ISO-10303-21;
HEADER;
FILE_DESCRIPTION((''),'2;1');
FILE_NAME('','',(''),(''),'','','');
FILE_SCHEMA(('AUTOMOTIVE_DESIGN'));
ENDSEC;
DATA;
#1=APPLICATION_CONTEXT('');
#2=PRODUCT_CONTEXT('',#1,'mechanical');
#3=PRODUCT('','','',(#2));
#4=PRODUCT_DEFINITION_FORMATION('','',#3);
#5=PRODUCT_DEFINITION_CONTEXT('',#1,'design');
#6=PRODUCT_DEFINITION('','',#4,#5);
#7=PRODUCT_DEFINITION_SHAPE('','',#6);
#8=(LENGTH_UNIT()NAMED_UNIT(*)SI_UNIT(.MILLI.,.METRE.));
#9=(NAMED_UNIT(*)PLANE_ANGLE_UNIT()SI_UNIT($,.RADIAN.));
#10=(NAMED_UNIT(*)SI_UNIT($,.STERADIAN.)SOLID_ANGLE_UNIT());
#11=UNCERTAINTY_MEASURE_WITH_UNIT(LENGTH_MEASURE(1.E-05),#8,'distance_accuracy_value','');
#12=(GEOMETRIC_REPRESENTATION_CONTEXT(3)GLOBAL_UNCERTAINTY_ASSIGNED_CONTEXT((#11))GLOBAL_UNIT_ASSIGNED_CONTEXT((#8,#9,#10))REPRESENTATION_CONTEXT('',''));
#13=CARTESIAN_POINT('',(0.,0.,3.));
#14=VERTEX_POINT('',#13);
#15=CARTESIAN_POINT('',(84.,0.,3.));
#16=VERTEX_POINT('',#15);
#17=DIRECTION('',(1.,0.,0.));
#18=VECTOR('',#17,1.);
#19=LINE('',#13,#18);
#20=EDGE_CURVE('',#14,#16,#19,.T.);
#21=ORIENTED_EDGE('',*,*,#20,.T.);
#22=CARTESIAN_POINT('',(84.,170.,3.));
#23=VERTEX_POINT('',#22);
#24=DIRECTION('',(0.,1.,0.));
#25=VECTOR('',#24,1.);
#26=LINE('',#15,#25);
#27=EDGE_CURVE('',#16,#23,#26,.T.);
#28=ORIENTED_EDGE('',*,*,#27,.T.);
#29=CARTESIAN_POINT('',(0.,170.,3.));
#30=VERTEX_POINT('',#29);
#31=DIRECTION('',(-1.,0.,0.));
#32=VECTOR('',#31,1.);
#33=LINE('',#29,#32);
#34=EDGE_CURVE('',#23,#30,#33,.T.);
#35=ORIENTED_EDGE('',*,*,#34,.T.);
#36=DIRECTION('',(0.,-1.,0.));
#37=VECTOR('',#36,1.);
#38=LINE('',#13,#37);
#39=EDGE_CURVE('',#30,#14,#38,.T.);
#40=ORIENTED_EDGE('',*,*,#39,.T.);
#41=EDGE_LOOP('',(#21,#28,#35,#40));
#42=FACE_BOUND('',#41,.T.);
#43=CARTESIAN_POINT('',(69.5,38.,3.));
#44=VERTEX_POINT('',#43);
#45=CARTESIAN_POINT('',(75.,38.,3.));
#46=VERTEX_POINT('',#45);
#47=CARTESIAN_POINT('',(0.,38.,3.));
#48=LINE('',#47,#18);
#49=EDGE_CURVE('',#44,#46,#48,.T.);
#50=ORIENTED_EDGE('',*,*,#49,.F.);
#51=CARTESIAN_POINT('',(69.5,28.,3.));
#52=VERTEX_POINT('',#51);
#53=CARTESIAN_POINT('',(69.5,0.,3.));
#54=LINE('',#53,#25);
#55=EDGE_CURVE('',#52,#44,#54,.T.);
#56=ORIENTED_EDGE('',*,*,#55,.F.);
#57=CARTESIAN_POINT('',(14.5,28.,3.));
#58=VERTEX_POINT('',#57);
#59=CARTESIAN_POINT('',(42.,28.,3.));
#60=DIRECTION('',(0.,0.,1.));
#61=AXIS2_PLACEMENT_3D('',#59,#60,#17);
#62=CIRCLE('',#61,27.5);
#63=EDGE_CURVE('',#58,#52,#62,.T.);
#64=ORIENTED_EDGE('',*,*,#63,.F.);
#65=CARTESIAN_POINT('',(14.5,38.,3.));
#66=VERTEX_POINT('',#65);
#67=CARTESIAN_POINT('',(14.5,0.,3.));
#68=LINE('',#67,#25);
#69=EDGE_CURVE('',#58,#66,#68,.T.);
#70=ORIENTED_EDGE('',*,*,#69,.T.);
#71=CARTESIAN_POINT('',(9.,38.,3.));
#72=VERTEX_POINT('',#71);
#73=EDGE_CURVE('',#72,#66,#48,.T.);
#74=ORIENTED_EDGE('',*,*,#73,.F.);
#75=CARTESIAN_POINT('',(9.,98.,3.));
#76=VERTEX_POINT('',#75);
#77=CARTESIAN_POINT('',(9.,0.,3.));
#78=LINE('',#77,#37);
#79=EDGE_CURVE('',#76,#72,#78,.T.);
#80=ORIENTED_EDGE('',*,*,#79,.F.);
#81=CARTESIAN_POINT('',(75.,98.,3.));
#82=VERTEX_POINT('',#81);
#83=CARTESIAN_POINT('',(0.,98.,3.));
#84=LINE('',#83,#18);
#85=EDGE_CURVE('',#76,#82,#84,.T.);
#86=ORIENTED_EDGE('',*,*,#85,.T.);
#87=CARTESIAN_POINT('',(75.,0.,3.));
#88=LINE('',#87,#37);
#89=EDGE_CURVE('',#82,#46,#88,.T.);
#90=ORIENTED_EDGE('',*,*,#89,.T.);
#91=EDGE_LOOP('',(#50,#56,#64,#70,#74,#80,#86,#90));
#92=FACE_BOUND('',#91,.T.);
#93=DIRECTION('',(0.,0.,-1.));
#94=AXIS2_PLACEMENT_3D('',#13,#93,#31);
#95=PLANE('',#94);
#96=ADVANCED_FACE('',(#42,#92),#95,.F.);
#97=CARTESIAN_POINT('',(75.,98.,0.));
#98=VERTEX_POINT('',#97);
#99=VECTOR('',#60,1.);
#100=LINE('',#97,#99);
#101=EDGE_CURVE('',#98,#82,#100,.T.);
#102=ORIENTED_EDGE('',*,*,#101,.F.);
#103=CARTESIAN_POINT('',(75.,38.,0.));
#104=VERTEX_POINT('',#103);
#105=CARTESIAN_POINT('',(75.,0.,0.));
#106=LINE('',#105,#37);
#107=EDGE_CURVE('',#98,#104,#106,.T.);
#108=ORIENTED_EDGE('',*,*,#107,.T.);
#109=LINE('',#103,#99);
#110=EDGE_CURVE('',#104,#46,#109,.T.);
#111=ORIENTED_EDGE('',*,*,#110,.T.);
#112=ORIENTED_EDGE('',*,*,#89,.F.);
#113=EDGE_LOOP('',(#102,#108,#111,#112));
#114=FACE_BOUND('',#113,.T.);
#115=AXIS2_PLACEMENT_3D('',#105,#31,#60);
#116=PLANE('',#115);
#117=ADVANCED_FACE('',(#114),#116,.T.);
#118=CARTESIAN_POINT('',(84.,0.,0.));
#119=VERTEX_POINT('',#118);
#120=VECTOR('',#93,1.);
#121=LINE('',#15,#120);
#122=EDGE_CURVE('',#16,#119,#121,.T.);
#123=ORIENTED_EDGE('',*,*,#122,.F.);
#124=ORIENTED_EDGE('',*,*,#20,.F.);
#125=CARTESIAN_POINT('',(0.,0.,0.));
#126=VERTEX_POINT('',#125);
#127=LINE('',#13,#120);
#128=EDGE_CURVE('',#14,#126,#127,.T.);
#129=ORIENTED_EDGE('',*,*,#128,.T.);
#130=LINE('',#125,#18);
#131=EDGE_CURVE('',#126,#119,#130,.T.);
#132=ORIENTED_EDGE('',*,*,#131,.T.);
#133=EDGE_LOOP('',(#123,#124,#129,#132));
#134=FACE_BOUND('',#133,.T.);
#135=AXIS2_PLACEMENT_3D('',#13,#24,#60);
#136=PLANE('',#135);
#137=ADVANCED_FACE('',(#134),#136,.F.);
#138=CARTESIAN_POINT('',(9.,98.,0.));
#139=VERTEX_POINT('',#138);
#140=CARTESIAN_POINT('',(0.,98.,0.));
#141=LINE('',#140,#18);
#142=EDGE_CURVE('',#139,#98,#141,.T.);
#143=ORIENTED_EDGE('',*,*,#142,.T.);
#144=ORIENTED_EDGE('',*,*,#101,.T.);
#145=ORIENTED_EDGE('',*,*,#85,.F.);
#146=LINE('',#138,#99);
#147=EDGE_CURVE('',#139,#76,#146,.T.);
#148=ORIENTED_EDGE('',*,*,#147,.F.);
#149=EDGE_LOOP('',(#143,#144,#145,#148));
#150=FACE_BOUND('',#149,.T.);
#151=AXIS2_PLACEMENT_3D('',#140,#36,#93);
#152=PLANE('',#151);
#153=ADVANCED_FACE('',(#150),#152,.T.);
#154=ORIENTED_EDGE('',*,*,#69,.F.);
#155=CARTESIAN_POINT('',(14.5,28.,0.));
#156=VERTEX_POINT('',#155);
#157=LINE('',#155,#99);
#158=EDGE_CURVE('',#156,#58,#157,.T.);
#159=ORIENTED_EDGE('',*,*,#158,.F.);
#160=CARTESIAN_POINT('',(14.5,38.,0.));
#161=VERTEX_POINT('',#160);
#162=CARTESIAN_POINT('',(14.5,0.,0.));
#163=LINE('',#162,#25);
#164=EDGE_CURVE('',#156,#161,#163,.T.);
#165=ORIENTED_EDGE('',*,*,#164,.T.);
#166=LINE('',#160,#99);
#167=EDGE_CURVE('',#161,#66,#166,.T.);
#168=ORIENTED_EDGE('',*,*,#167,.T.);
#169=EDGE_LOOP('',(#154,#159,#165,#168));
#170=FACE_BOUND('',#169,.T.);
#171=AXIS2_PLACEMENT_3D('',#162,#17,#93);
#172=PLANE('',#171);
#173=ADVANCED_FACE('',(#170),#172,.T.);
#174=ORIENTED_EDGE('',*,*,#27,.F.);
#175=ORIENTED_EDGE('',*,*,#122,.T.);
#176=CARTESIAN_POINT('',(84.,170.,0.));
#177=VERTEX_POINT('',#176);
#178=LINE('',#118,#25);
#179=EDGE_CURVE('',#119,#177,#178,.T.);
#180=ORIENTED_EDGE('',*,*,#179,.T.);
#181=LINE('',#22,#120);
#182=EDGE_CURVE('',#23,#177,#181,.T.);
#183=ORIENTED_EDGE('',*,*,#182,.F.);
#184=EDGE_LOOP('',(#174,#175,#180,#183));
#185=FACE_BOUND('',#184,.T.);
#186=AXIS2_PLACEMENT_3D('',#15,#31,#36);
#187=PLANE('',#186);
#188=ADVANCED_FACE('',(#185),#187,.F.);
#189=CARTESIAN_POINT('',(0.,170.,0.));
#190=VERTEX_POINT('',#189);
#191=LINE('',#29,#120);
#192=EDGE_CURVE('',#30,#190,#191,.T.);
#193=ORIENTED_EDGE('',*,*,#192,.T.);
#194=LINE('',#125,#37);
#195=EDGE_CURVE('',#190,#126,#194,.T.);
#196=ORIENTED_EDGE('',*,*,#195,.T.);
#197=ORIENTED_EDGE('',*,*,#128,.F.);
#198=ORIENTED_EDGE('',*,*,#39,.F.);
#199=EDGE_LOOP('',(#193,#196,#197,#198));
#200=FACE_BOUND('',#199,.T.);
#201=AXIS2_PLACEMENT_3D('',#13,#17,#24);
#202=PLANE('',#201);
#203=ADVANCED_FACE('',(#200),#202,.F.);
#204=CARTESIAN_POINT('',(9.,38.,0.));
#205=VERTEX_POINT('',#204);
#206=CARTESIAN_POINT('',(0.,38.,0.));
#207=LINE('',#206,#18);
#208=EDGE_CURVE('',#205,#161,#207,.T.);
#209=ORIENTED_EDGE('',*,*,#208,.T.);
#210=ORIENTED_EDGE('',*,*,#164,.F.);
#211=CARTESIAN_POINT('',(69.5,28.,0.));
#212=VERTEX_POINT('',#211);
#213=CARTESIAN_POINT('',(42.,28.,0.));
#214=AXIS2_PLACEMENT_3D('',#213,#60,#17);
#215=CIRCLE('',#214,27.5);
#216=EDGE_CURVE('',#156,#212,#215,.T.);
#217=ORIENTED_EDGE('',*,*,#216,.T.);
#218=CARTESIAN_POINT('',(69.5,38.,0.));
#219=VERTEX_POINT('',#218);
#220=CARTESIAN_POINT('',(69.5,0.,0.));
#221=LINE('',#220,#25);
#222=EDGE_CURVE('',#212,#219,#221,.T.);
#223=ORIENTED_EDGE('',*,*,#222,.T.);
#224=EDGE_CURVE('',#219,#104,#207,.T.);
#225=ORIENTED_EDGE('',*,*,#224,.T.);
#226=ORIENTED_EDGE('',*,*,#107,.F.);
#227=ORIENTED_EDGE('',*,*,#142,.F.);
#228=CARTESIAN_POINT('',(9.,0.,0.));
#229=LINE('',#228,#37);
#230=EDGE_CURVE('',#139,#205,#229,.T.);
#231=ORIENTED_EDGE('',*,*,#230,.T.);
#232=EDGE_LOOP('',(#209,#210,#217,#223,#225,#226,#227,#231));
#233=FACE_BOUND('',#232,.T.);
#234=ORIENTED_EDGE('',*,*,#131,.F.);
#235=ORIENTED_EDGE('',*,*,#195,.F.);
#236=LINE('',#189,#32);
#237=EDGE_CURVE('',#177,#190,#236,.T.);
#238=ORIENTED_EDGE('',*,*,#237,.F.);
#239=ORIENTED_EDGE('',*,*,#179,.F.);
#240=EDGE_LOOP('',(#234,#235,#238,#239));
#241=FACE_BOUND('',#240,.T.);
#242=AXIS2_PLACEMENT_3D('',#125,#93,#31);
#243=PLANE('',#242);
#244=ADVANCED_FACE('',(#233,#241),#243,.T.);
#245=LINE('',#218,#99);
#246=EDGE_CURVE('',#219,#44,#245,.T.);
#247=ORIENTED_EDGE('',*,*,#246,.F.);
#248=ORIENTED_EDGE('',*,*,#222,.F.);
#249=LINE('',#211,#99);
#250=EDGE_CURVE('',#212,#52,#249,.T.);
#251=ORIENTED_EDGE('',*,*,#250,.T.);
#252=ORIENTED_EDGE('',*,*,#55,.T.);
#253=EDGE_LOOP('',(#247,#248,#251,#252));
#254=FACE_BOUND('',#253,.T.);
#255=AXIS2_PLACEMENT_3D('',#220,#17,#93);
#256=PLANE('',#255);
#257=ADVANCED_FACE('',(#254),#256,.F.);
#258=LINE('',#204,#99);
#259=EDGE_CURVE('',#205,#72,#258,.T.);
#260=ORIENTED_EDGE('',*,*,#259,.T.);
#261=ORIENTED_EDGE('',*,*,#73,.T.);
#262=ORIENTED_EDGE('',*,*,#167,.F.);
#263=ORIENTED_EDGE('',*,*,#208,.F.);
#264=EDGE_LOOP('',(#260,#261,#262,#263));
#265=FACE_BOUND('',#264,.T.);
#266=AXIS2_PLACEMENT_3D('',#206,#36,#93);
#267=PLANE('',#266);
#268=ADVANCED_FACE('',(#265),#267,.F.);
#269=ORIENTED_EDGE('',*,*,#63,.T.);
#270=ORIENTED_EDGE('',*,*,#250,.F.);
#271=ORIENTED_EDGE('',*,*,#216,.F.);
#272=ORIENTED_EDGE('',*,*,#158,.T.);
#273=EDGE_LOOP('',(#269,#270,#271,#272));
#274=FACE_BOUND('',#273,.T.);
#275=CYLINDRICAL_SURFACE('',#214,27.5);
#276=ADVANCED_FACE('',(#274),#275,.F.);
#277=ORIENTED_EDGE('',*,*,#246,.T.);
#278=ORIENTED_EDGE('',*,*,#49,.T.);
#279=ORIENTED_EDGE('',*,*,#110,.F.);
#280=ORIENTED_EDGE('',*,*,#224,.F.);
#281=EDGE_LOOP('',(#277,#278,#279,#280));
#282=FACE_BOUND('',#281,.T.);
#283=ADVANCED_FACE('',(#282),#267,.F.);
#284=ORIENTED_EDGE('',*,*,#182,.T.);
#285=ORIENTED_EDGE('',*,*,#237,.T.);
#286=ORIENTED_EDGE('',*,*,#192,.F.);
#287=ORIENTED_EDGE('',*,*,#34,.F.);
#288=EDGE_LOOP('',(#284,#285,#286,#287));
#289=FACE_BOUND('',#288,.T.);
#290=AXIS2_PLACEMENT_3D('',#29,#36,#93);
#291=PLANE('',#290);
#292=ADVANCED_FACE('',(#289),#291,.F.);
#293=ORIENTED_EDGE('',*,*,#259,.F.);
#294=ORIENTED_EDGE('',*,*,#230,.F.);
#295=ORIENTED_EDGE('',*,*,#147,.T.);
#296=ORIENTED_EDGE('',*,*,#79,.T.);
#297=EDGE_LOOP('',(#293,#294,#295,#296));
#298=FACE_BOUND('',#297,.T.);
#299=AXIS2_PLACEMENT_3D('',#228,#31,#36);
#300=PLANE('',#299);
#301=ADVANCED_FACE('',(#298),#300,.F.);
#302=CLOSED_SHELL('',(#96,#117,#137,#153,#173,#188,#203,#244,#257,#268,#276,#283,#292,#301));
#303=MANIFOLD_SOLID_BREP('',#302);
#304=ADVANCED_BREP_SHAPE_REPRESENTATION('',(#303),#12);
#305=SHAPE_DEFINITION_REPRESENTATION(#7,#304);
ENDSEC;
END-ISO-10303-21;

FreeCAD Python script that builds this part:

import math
import FreeCAD as App
import Part
import Sketcher
from FreeCAD import Vector


def add_polygon(sketch, points):
    """Adds a closed chain of lines whose ends are joined by coincident constraints."""
    first, n = sketch.GeometryCount, len(points)
    for a, b in zip(points, points[1:] + points[:1]):
        sketch.addGeometry(Part.LineSegment(App.Vector(*a, 0), App.Vector(*b, 0)), False)
    for i in range(n):
        sketch.addConstraint(Sketcher.Constraint("Coincident", first + i, 2, first + (i + 1) % n, 1))

doc = App.newDocument("Part")
params = doc.addObject("Spreadsheet::Sheet", "Params")
for row, (alias, value) in enumerate([
    ("sketch1_width", "84 mm"),
    ("sketch1_height", "170 mm"),
    ("pad1_length", "3 mm"),
    ("sketch2_radius", "27.5 mm"),
    ("sketch2_width", "66 mm"),
    ("sketch2_height", "10 mm"),
    ("sketch2_height2", "60 mm"),
    ("pocket1_length", "3 mm"),
], start=1):
    params.set(f"A{row}", alias)
    params.set(f"B{row}", "=" + value)
    params.setAlias(f"B{row}", alias)

body = doc.addObject("PartDesign::Body", "Body")

sketch1 = body.newObject("Sketcher::SketchObject", "Sketch")
sketch1.AttachmentSupport = (doc.getObject("XY_Plane"), [""])
sketch1.MapMode = "FlatFace"
add_polygon(sketch1, [(0, 170), (0, 0), (84, 0), (84, 170)])
sketch1.addConstraint([
    Sketcher.Constraint("Vertical", 0),
    Sketcher.Constraint("Horizontal", 1),
    Sketcher.Constraint("Vertical", 2),
    Sketcher.Constraint("Horizontal", 3),
    Sketcher.Constraint("Coincident", 0, 2, -1, 1),
    Sketcher.Constraint("DistanceX", 1, 1, 1, 2, 84.0),
    Sketcher.Constraint("DistanceY", 0, 2, 0, 1, 170.0),
])
sketch1.setExpression("Constraints[9]", "Params.sketch1_width")
sketch1.setExpression("Constraints[10]", "Params.sketch1_height")
pad1 = body.newObject("PartDesign::Pad", "Pad")
pad1.Profile = sketch1
pad1.setExpression("Length", "Params.pad1_length")

sketch2 = body.newObject("Sketcher::SketchObject", "Sketch001")
sketch2.AttachmentSupport = (doc.getObject("XY_Plane"), [""])
sketch2.MapMode = "FlatFace"
sketch2.AttachmentOffset = App.Placement(Vector(0, 0, 3), App.Rotation())
sketch2.addGeometry([
    Part.ArcOfCircle(Part.Circle(Vector(42, 28, 0), Vector(0, 0, 1), 28), math.radians(180), math.radians(360)),
    Part.LineSegment(Vector(70, 28, 0), Vector(70, 38, 0)),
    Part.LineSegment(Vector(70, 38, 0), Vector(75, 38, 0)),
    Part.LineSegment(Vector(75, 38, 0), Vector(75, 98, 0)),
    Part.LineSegment(Vector(75, 98, 0), Vector(9, 98, 0)),
    Part.LineSegment(Vector(9, 98, 0), Vector(9, 38, 0)),
    Part.LineSegment(Vector(9, 38, 0), Vector(14, 38, 0)),
    Part.LineSegment(Vector(14, 38, 0), Vector(14, 28, 0)),
], False)
sketch2.addConstraint([
    Sketcher.Constraint("Tangent", 0, 2, 1, 1),
    Sketcher.Constraint("Coincident", 1, 2, 2, 1),
    Sketcher.Constraint("Coincident", 2, 2, 3, 1),
    Sketcher.Constraint("Coincident", 3, 2, 4, 1),
    Sketcher.Constraint("Coincident", 4, 2, 5, 1),
    Sketcher.Constraint("Coincident", 5, 2, 6, 1),
    Sketcher.Constraint("Coincident", 6, 2, 7, 1),
    Sketcher.Constraint("Tangent", 7, 2, 0, 1),
    Sketcher.Constraint("Vertical", 1),
    Sketcher.Constraint("Horizontal", 2),
    Sketcher.Constraint("Vertical", 3),
    Sketcher.Constraint("Horizontal", 4),
    Sketcher.Constraint("Vertical", 5),
    Sketcher.Constraint("Horizontal", 6),
    Sketcher.Constraint("Vertical", 7),
    Sketcher.Constraint("Horizontal", 2, 2, 5, 2),
    Sketcher.Constraint("Equal", 2, 6),
    Sketcher.Constraint("Radius", 0, 27.5),
    Sketcher.Constraint("DistanceX", 4, 2, 4, 1, 66.0),
    Sketcher.Constraint("DistanceY", 1, 1, 1, 2, 10.0),
    Sketcher.Constraint("DistanceY", 3, 1, 3, 2, 60.0),
    Sketcher.Constraint("DistanceX", -1, 1, 0, 3, 42.0),
    Sketcher.Constraint("DistanceY", -1, 1, 0, 3, 28.0),
])
sketch2.setExpression("Constraints[17]", "Params.sketch2_radius")
sketch2.setExpression("Constraints[18]", "Params.sketch2_width")
sketch2.setExpression("Constraints[19]", "Params.sketch2_height")
sketch2.setExpression("Constraints[20]", "Params.sketch2_height2")
pocket1 = body.newObject("PartDesign::Pocket", "Pocket")
pocket1.Profile = sketch2
pocket1.setExpression("Length", "Params.pocket1_length")

doc.recompute()
